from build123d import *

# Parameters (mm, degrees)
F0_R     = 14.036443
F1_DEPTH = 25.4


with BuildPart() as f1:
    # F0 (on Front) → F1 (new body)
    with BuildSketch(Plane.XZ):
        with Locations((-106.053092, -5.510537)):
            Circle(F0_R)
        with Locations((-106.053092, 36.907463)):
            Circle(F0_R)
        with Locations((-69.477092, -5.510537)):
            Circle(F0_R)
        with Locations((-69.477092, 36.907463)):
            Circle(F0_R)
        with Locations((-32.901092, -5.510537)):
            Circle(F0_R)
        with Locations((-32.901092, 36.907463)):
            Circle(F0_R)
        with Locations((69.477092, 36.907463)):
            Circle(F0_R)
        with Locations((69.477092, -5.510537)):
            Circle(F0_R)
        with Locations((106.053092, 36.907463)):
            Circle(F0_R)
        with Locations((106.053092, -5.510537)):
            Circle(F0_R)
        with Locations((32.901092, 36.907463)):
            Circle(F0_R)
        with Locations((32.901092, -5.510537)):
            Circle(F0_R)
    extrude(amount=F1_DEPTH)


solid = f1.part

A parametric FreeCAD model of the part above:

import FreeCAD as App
import Part
import Sketcher
Q = App.Units.Quantity

doc = App.newDocument("Part")
body = doc.addObject("PartDesign::Body", "Body")
body.AllowCompound = True

sketch1 = doc.addObject("Sketcher::SketchObject", "Sketch")
body.addObject(sketch1)
sketch1.AttachmentSupport = (doc.XZ_Plane, [""])
sketch1.MapMode = "FlatFace"
sketch1.addGeometry(Part.Circle(App.Vector(-106, -6, 0), App.Vector(0, 0, 1), 14), False)
sketch1.addGeometry(Part.Circle(App.Vector(-106, 37, 0), App.Vector(0, 0, 1), 14), False)
sketch1.addGeometry(Part.Circle(App.Vector(-69, -6, 0), App.Vector(0, 0, 1), 14), False)
sketch1.addGeometry(Part.Circle(App.Vector(-69, 37, 0), App.Vector(0, 0, 1), 14), False)
sketch1.addGeometry(Part.Circle(App.Vector(-33, -6, 0), App.Vector(0, 0, 1), 14), False)
sketch1.addGeometry(Part.Circle(App.Vector(-33, 37, 0), App.Vector(0, 0, 1), 14), False)
sketch1.addGeometry(Part.Circle(App.Vector(69, 37, 0), App.Vector(0, 0, 1), 14), False)
sketch1.addGeometry(Part.Circle(App.Vector(69, -6, 0), App.Vector(0, 0, 1), 14), False)
sketch1.addGeometry(Part.Circle(App.Vector(106, 37, 0), App.Vector(0, 0, 1), 14), False)
sketch1.addGeometry(Part.Circle(App.Vector(106, -6, 0), App.Vector(0, 0, 1), 14), False)
sketch1.addGeometry(Part.Circle(App.Vector(33, 37, 0), App.Vector(0, 0, 1), 14), False)
sketch1.addGeometry(Part.Circle(App.Vector(33, -6, 0), App.Vector(0, 0, 1), 14), False)
sketch1.addConstraint(Sketcher.Constraint("Equal", 0, 1))
sketch1.addConstraint(Sketcher.Constraint("Equal", 1, 2))
sketch1.addConstraint(Sketcher.Constraint("Equal", 2, 3))
sketch1.addConstraint(Sketcher.Constraint("Equal", 3, 4))
sketch1.addConstraint(Sketcher.Constraint("Equal", 4, 5))
sketch1.addConstraint(Sketcher.Constraint("Equal", 5, 6))
sketch1.addConstraint(Sketcher.Constraint("Equal", 6, 7))
sketch1.addConstraint(Sketcher.Constraint("Equal", 7, 8))
sketch1.addConstraint(Sketcher.Constraint("Equal", 8, 9))
sketch1.addConstraint(Sketcher.Constraint("Equal", 9, 10))
sketch1.addConstraint(Sketcher.Constraint("Equal", 10, 11))
sketch1.addConstraint(Sketcher.Constraint("Symmetric", 3, 3, 6, 3, -2))
sketch1.addConstraint(Sketcher.Constraint("Symmetric", 2, 3, 7, 3, -2))
sketch1.addConstraint(Sketcher.Constraint("Symmetric", 1, 3, 8, 3, -2))
sketch1.addConstraint(Sketcher.Constraint("Symmetric", 0, 3, 9, 3, -2))
sketch1.addConstraint(Sketcher.Constraint("Symmetric", 5, 3, 10, 3, -2))
sketch1.addConstraint(Sketcher.Constraint("Symmetric", 4, 3, 11, 3, -2))
sketch1.addConstraint(Sketcher.Constraint("Horizontal", 0, 3, 2, 3))
sketch1.addConstraint(Sketcher.Constraint("Horizontal", 1, 3, 3, 3))
sketch1.addConstraint(Sketcher.Constraint("Horizontal", 2, 3, 4, 3))
sketch1.addConstraint(Sketcher.Constraint("Horizontal", 3, 3, 5, 3))
sketch1.addConstraint(Sketcher.Constraint("Vertical", 0, 3, 1, 3))
sketch1.addConstraint(Sketcher.Constraint("Vertical", 2, 3, 3, 3))
sketch1.addConstraint(Sketcher.Constraint("Vertical", 4, 3, 5, 3))
sketch1.addConstraint(Sketcher.Constraint("DistanceY", 0, 3, 1, 3, Q("1.67 in")))
sketch1.addConstraint(Sketcher.Constraint("DistanceX", 0, 3, 2, 3, Q("1.44 in")))
sketch1.addConstraint(Sketcher.Constraint("DistanceX", 2, 3, 4, 3, Q("1.44 in")))
sketch1.addConstraint(Sketcher.Constraint("Diameter", 0, Q("28.072886 mm")))
sketch1.addConstraint(Sketcher.Constraint("DistanceX", 2, 3, -1, 1, Q("69.477092 mm")))
sketch1.addConstraint(Sketcher.Constraint("DistanceY", 0, 3, -1, 1, Q("5.510537 mm")))
pad1 = doc.addObject("PartDesign::Pad", "Pad")
body.addObject(pad1)
pad1.Profile = sketch1
pad1.Length = Q("1 in")

doc.recompute()
